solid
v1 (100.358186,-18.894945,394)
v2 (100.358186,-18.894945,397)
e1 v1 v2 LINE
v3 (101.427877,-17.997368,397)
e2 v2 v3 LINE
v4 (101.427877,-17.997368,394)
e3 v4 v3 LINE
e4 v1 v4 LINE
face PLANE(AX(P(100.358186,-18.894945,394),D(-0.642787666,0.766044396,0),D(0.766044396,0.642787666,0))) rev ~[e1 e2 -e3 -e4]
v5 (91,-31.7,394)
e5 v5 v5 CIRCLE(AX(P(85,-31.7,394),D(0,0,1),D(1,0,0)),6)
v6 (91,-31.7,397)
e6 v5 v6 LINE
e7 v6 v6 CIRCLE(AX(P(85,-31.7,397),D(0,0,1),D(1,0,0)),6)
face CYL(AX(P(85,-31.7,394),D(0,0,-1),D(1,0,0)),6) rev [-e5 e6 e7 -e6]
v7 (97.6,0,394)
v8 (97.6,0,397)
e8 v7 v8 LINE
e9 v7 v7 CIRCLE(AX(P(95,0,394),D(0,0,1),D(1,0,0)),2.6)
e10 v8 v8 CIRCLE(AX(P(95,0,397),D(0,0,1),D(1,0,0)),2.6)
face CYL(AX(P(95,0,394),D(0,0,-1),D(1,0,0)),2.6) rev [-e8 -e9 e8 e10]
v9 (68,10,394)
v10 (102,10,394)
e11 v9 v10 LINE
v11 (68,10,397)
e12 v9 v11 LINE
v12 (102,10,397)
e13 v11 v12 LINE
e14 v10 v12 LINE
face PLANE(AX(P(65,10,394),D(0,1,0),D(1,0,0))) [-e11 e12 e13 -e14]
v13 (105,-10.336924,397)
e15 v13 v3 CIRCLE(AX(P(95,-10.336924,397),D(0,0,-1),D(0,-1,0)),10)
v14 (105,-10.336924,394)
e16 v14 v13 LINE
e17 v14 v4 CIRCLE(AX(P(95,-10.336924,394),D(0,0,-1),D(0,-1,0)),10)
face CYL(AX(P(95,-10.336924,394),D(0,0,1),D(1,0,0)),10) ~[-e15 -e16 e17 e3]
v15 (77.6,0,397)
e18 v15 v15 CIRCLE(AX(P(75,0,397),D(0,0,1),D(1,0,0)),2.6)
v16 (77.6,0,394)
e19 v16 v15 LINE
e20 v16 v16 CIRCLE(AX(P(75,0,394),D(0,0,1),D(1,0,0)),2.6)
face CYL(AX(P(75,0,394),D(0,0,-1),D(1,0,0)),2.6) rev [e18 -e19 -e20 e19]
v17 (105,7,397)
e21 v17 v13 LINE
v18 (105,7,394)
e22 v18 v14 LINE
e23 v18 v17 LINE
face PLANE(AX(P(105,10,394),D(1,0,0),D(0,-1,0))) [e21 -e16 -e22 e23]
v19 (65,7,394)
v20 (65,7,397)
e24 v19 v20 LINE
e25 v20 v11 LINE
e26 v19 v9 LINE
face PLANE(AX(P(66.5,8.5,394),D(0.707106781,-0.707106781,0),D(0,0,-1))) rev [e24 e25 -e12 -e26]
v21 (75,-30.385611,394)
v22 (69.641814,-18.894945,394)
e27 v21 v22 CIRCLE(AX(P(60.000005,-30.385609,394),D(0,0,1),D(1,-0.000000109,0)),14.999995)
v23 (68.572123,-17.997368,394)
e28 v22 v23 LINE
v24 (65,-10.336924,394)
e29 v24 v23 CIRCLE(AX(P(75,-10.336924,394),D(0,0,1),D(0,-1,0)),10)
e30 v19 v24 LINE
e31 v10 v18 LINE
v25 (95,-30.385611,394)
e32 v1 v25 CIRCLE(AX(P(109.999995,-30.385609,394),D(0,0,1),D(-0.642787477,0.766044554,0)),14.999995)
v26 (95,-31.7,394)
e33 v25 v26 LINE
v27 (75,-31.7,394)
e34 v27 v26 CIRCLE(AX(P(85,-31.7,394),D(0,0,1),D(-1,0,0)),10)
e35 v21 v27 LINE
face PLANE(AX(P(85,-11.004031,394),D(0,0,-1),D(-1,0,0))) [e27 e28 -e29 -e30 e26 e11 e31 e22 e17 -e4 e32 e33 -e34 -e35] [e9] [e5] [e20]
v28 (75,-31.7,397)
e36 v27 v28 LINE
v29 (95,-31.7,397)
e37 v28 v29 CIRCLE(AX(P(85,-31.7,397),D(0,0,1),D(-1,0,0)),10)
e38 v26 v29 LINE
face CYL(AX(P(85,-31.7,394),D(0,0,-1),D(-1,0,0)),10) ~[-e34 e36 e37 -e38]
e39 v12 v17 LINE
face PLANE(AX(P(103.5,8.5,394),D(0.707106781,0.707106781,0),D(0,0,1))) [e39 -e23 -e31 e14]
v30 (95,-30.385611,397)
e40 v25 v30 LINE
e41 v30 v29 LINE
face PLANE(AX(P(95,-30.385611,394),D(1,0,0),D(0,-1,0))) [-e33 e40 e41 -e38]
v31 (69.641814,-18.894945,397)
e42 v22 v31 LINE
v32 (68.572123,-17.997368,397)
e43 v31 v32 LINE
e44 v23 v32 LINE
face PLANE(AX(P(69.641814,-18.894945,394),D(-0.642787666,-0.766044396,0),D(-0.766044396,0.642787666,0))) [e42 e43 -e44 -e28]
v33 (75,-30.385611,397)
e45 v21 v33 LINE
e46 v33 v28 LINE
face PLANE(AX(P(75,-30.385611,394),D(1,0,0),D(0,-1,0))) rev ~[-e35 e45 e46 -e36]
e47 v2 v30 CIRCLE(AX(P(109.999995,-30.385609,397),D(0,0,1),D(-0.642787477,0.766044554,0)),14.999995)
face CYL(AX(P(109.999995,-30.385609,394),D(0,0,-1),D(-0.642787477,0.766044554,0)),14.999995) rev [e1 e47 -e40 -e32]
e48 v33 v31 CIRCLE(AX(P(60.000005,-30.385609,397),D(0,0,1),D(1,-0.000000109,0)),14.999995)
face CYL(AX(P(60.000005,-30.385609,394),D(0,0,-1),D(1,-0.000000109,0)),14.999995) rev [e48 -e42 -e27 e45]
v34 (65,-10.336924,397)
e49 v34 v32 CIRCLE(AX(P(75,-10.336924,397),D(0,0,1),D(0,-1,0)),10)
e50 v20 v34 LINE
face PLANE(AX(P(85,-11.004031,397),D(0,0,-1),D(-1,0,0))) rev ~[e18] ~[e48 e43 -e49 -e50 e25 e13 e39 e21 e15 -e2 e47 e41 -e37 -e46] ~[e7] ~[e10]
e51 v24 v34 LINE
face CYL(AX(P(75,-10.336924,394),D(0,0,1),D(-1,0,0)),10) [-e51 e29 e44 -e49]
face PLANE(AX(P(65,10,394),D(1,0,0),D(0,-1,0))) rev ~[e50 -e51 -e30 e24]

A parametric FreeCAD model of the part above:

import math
import FreeCAD as App
import Part
import Sketcher

V = App.Vector
Q = App.Units.Quantity


def edges_at(feature, points):
    """Names of the edges that pass closest to the given points."""
    edges = feature.Shape.Edges
    near = lambda p: min(range(len(edges)), key=lambda i: edges[i].distToShape(Part.Vertex(*p))[0])
    return sorted({f"Edge{near(p) + 1}" for p in points})

doc = App.newDocument("Part")
body = doc.addObject("PartDesign::Body", "Body")

# Sketch on XY plane
sketch1 = body.newObject("Sketcher::SketchObject", "Sketch")
sketch1.AttachmentSupport = (doc.getObject("XY_Plane"), [""])
sketch1.MapMode = "FlatFace"
sketch1.addGeometry(Part.LineSegment(V(-20, 10, 0), V(-20, -15, 0)), False)
sketch1.addGeometry(Part.LineSegment(V(-20, -15, 0), V(-15.4, -18.9, 0)), False)
sketch1.addGeometry(Part.ArcOfCircle(Part.Circle(V(-25, -30.4, 0), V(0, 0, 1), 15), math.radians(0), math.radians(50)), False)
sketch1.addGeometry(Part.LineSegment(V(-10, -30.4, 0), V(-10, -31.7, 0)), False)
sketch1.addGeometry(Part.ArcOfCircle(Part.Circle(V(0, -31.7, 0), V(0, 0, 1), 10), math.radians(180), math.radians(360)), False)
sketch1.addGeometry(Part.LineSegment(V(10, -31.7, 0), V(10, -30.4, 0)), False)
sketch1.addGeometry(Part.ArcOfCircle(Part.Circle(V(25, -30.4, 0), V(0, 0, 1), 15), math.radians(130), math.radians(180)), False)
sketch1.addGeometry(Part.LineSegment(V(15.4, -18.9, 0), V(20, -15, 0)), False)
sketch1.addGeometry(Part.LineSegment(V(20, -15, 0), V(20, 10, 0)), False)
sketch1.addGeometry(Part.LineSegment(V(20, 10, 0), V(-20, 10, 0)), False)
sketch1.addGeometry(Part.Circle(V(0, -31.7, 0), V(0, 0, 1), 6), False)
sketch1.addGeometry(Part.Circle(V(10, 0, 0), V(0, 0, 1), 2.6), False)
sketch1.addGeometry(Part.Circle(V(-10, 0, 0), V(0, 0, 1), 2.6), False)
sketch1.addConstraint(Sketcher.Constraint("Coincident", 0, 2, 1, 1))
sketch1.addConstraint(Sketcher.Constraint("Tangent", 1, 2, 2, 2))
sketch1.addConstraint(Sketcher.Constraint("Tangent", 2, 1, 3, 1))
sketch1.addConstraint(Sketcher.Constraint("Tangent", 3, 2, 4, 1))
sketch1.addConstraint(Sketcher.Constraint("Tangent", 4, 2, 5, 1))
sketch1.addConstraint(Sketcher.Constraint("Tangent", 5, 2, 6, 2))
sketch1.addConstraint(Sketcher.Constraint("Tangent", 6, 1, 7, 1))
sketch1.addConstraint(Sketcher.Constraint("Coincident", 7, 2, 8, 1))
sketch1.addConstraint(Sketcher.Constraint("Coincident", 8, 2, 9, 1))
sketch1.addConstraint(Sketcher.Constraint("Coincident", 9, 2, 0, 1))
sketch1.addConstraint(Sketcher.Constraint("Vertical", 0))
sketch1.addConstraint(Sketcher.Constraint("Vertical", 3))
sketch1.addConstraint(Sketcher.Constraint("Vertical", 5))
sketch1.addConstraint(Sketcher.Constraint("Vertical", 8))
sketch1.addConstraint(Sketcher.Constraint("Horizontal", 9))
sketch1.addConstraint(Sketcher.Constraint("Coincident", 10, 3, 4, 3))
sketch1.addConstraint(Sketcher.Constraint("Equal", 2, 6))
sketch1.addConstraint(Sketcher.Constraint("Equal", 11, 12))
sketch1.addConstraint(Sketcher.Constraint("Symmetric", 11, 3, 12, 3, -1, 1))
sketch1.addConstraint(Sketcher.Constraint("Symmetric", 2, 3, 6, 3, -2))
sketch1.addConstraint(Sketcher.Constraint("Symmetric", 0, 2, 7, 2, -2))
sketch1.addConstraint(Sketcher.Constraint("PointOnObject", 11, 3, -1))
sketch1.addConstraint(Sketcher.Constraint("Vertical", 12, 3, 2, 1))
sketch1.addConstraint(Sketcher.Constraint("Diameter", 10, Q("12 mm")))
sketch1.addConstraint(Sketcher.Constraint("Radius", 4, Q("10 mm")))
sketch1.addConstraint(Sketcher.Constraint("Diameter", 11, Q("5.2 mm")))
sketch1.addConstraint(Sketcher.Constraint("DistanceX", 9, 2, 9, 1, Q("40 mm")))
sketch1.addConstraint(Sketcher.Constraint("DistanceY", 0, 2, 0, 1, Q("25 mm")))
sketch1.addConstraint(Sketcher.Constraint("Angle", 1, Q("-40.000004 deg")))
sketch1.addConstraint(Sketcher.Constraint("DistanceY", 0, 2, -1, 1, Q("15 mm")))
sketch1.addConstraint(Sketcher.Constraint("DistanceY", 4, 3, -1, 1, Q("31.7 mm")))
sketch1.addConstraint(Sketcher.Constraint("Radius", 2, Q("14.999995 mm")))
pad1 = body.newObject("PartDesign::Pad", "Pad")
pad1.Profile = sketch1
pad1.Length = 3
doc.recompute()

fillet = body.newObject("PartDesign::Fillet", "Fillet")
fillet.Base = (pad1, edges_at(pad1, [(-20, -15, 1.5), (20, -15, 1.5)]))
fillet.Radius = 10
doc.recompute()

chamfer = body.newObject("PartDesign::Chamfer", "Chamfer")
chamfer.Base = (fillet, edges_at(fillet, [(-20, 10, 1.5), (20, 10, 1.5)]))
chamfer.Size = 3
body2 = doc.addObject("PartDesign::Body", "Body001")
doc.recompute()

body.Placement = App.Placement(V(85, 0, 394), App.Rotation(V(0, 0, 1), 0))
boolean = body2.newObject("PartDesign::Boolean", "Boolean")
boolean.Type = "Fuse"
boolean.addObjects([body])

doc.recompute()
